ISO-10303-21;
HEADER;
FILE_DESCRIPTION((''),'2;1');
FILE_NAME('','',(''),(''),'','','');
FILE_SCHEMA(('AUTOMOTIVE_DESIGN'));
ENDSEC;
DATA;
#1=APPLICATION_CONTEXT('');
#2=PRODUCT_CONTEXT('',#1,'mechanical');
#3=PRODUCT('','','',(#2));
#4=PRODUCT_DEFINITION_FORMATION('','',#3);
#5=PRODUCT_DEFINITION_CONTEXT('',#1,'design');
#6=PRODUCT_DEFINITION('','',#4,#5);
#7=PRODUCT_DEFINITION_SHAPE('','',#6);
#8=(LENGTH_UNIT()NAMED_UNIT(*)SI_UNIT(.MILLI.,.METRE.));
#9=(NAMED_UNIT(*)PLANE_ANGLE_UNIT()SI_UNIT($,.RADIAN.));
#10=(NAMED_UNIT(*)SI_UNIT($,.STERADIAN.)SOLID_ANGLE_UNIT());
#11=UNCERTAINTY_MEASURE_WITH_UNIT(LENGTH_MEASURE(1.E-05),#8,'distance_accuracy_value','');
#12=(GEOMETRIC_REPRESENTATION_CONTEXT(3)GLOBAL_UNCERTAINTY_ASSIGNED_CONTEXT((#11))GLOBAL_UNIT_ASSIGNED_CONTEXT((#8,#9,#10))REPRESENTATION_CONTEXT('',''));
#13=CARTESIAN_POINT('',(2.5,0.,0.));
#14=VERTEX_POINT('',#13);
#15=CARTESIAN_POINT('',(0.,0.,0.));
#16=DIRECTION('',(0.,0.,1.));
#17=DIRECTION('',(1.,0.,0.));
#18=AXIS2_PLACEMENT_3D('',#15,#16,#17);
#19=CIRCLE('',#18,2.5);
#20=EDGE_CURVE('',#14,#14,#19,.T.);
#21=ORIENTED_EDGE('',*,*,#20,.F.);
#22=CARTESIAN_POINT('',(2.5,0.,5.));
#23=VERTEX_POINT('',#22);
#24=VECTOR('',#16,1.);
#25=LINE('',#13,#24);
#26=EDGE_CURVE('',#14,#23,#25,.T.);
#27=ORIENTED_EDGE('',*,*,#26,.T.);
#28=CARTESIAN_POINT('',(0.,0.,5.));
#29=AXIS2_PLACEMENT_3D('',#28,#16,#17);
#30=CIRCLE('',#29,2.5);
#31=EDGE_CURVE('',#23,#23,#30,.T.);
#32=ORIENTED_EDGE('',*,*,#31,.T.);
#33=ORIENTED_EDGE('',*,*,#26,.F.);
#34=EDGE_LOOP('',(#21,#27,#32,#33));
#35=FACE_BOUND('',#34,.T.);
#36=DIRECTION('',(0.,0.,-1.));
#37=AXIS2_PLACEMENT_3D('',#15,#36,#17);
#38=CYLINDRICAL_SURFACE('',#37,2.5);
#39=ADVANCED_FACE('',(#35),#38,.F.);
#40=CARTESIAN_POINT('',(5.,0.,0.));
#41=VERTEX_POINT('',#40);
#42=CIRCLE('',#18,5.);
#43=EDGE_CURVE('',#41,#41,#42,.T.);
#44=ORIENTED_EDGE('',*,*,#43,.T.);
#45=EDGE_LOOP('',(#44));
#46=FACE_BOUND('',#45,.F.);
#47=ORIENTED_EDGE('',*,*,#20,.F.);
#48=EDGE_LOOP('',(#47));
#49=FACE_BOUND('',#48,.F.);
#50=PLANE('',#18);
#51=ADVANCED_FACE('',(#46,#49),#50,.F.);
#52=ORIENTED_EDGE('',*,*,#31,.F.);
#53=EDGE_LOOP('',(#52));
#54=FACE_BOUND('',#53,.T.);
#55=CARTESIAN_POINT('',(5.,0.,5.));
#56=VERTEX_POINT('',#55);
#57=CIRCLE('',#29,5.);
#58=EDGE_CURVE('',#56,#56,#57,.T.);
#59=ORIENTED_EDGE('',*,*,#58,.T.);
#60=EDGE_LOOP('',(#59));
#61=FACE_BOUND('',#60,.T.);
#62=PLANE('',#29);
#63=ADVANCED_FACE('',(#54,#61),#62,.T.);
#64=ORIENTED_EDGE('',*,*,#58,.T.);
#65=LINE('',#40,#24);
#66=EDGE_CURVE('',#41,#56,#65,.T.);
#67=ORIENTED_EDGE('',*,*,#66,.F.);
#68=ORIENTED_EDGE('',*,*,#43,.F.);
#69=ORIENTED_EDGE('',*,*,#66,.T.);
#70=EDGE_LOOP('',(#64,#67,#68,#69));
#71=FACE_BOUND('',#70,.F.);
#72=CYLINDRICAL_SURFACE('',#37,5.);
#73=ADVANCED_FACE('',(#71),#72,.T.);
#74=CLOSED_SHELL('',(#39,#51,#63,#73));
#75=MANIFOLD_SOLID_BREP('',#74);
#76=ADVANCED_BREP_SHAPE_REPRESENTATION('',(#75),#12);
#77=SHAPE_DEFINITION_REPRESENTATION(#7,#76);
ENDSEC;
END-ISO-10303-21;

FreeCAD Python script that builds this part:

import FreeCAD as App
import Part
import Sketcher

doc = App.newDocument("Part")
body = doc.addObject("PartDesign::Body", "Body")

# Sketch on XY plane
sketch1 = doc.addObject("Sketcher::SketchObject", "Sketch")
body.addObject(sketch1)
sketch1.AttachmentSupport = (doc.XY_Plane, [""])
sketch1.MapMode = "FlatFace"
sketch1.addGeometry(Part.Circle(App.Vector(0, 0, 0), App.Vector(0, 0, 1), 5), False)
sketch1.addGeometry(Part.Circle(App.Vector(0, 0, 0), App.Vector(0, 0, 1), 2.5), False)
sketch1.addConstraint(Sketcher.Constraint("Coincident", 0, 3, -1, 1))
sketch1.addConstraint(Sketcher.Constraint("Coincident", 1, 3, -1, 1))
sketch1.addConstraint(Sketcher.Constraint("Diameter", 0, 10.0))
sketch1.addConstraint(Sketcher.Constraint("Diameter", 1, 5.0))
pad1 = doc.addObject("PartDesign::Pad", "Pad")
body.addObject(pad1)
pad1.Profile = sketch1
pad1.Length = 5

doc.recompute()
